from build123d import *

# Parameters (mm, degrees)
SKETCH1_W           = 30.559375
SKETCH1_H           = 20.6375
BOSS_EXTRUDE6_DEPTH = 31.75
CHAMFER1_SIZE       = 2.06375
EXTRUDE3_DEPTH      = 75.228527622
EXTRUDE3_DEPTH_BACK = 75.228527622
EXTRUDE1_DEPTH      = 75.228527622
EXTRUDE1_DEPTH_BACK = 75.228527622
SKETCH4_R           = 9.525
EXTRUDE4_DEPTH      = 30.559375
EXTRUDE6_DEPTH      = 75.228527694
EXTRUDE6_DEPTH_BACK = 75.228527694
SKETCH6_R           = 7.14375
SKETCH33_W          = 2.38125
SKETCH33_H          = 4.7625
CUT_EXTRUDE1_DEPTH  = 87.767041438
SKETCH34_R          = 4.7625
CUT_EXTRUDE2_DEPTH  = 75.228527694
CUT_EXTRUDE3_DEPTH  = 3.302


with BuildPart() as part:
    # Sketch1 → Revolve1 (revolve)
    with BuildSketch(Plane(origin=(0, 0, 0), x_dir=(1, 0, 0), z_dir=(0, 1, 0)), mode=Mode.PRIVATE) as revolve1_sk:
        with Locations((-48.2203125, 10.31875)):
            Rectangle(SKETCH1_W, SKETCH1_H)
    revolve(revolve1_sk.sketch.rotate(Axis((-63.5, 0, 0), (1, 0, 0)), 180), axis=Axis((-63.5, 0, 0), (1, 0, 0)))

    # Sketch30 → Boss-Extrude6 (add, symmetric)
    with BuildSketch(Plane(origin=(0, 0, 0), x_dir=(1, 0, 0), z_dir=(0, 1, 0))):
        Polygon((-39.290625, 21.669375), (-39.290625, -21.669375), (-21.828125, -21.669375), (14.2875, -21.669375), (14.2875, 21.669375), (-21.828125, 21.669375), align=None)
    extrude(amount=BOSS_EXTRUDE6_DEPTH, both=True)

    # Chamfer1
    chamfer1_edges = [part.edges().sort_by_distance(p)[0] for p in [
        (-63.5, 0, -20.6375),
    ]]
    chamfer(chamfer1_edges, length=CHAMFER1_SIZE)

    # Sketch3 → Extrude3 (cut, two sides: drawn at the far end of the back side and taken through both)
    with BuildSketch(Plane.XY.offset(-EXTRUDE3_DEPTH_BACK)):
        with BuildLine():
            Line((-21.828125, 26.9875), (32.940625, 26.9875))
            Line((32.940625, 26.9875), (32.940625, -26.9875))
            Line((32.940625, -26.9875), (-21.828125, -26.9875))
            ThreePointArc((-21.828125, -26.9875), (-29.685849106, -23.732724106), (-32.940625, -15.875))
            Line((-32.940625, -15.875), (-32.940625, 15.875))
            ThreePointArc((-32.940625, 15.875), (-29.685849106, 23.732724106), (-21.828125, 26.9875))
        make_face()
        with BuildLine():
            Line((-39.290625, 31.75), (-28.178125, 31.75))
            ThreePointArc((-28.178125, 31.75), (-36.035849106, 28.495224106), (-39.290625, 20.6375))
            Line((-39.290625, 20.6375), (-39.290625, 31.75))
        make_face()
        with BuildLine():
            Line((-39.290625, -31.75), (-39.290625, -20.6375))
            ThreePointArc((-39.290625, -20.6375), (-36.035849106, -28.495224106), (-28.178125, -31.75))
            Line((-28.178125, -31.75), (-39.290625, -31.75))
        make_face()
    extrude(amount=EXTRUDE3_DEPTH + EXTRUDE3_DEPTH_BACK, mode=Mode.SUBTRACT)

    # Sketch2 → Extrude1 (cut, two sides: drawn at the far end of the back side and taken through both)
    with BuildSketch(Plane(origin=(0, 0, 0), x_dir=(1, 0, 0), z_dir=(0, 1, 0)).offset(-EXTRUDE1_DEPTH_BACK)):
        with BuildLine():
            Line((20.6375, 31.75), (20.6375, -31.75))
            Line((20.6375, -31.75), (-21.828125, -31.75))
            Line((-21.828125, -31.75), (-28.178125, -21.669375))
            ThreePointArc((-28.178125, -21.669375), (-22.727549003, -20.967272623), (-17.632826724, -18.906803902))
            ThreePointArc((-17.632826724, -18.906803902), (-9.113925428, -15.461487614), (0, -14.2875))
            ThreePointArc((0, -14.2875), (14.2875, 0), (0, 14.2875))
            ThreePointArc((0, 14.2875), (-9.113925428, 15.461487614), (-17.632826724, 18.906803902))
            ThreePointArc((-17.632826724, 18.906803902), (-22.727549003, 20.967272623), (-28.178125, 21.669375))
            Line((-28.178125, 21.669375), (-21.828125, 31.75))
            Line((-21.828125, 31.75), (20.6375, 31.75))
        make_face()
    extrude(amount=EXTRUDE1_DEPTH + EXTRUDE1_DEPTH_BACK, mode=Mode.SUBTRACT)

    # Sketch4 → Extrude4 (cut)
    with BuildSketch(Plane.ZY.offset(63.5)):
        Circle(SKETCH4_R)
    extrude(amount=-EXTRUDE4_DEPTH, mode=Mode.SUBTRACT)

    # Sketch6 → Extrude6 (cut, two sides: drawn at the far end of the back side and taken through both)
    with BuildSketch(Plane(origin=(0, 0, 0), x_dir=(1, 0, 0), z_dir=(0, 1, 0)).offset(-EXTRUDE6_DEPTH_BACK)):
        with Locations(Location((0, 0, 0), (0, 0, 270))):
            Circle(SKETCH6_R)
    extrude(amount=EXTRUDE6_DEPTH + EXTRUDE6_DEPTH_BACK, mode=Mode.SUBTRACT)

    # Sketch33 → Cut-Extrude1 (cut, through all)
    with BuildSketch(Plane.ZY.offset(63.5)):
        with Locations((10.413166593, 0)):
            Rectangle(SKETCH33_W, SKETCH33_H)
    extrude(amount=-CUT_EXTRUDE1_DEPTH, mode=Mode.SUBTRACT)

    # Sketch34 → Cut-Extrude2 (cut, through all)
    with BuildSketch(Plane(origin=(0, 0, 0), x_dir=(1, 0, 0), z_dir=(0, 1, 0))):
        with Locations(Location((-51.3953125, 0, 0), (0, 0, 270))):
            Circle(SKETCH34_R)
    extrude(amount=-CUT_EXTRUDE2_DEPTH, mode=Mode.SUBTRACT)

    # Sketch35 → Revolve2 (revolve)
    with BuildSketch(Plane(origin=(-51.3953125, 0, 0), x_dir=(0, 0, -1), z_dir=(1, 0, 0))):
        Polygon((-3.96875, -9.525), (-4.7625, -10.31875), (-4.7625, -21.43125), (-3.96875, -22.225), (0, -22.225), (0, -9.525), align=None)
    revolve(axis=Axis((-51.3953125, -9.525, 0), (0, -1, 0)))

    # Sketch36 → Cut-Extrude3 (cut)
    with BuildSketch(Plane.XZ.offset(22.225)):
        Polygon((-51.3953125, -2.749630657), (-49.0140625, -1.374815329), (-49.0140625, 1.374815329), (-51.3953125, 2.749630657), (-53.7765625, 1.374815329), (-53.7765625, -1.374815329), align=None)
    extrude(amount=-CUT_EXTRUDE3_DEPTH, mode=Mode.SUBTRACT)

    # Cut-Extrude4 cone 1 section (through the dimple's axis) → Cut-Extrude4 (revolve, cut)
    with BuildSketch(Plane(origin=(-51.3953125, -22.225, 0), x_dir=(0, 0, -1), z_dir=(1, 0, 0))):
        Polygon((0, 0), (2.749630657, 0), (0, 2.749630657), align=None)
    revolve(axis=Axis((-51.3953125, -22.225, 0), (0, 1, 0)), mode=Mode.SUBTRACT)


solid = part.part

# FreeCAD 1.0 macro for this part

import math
import FreeCAD as App
import Part
import Sketcher
from FreeCAD import Vector
Q = App.Units.Quantity


def edges_at(feature, points):
    """Names of the edges that pass closest to the given points."""
    edges = feature.Shape.Edges
    near = lambda p: min(range(len(edges)), key=lambda i: edges[i].distToShape(Part.Vertex(*p))[0])
    return sorted({f"Edge{near(p) + 1}" for p in points})


def add_polygon(sketch, points):
    """Adds a closed chain of lines whose ends are joined by coincident constraints."""
    first, n = sketch.GeometryCount, len(points)
    for a, b in zip(points, points[1:] + points[:1]):
        sketch.addGeometry(Part.LineSegment(App.Vector(*a, 0), App.Vector(*b, 0)), False)
    for i in range(n):
        sketch.addConstraint(Sketcher.Constraint("Coincident", first + i, 2, first + (i + 1) % n, 1))

doc = App.newDocument("Part")
body = doc.addObject("PartDesign::Body", "Body")

sketch1 = body.newObject("Sketcher::SketchObject", "Sketch")
sketch1.AttachmentSupport = (doc.getObject("XZ_Plane"), [""])
sketch1.MapMode = "FlatFace"
add_polygon(sketch1, [(-63.5, -20.6375), (-63.5, 0), (-32.940625, 0), (-32.940625, -20.6375)])
sketch1.addConstraint(Sketcher.Constraint("Vertical", 0))
sketch1.addConstraint(Sketcher.Constraint("Horizontal", 1))
sketch1.addConstraint(Sketcher.Constraint("Vertical", 2))
sketch1.addConstraint(Sketcher.Constraint("Horizontal", 3))
sketch1.addConstraint(Sketcher.Constraint("PointOnObject", 0, 2, -1))
sketch1.addConstraint(Sketcher.Constraint("DistanceX", 0, 2, -1, 1, Q("2.5 in")))
sketch1.addConstraint(Sketcher.Constraint("DistanceX", 1, 1, 1, 2, Q("1.203125 in")))
sketch1.addConstraint(Sketcher.Constraint("DistanceY", 0, 1, 0, 2, Q("0.8125 in")))
revolution = body.newObject("PartDesign::Revolution", "Revolution")
revolution.Profile = sketch1
revolution.ReferenceAxis = (sketch1, ["H_Axis"])
revolution.Angle = 360

sketch2 = body.newObject("Sketcher::SketchObject", "Sketch001")
sketch2.AttachmentSupport = (doc.getObject("XZ_Plane"), [""])
sketch2.MapMode = "FlatFace"
add_polygon(sketch2, [(-39.290625, -21.669375), (-39.290625, 21.669375), (14.2875, 21.669375), (14.2875, -21.669375)])
sketch2.addConstraint(Sketcher.Constraint("Vertical", 0))
sketch2.addConstraint(Sketcher.Constraint("Horizontal", 1))
sketch2.addConstraint(Sketcher.Constraint("Vertical", 2))
sketch2.addConstraint(Sketcher.Constraint("Horizontal", 3))
sketch2.addConstraint(Sketcher.Constraint("DistanceX", 1, 1, 1, 2, Q("2.109375 in")))
sketch2.addConstraint(Sketcher.Constraint("DistanceX", 0, 2, -1, 1, Q("1.546875 in")))
sketch2.addConstraint(Sketcher.Constraint("DistanceY", 0, 1, 0, 2, 43.33875))
sketch2.addConstraint(Sketcher.Constraint("DistanceY", -1, 1, 0, 2, 21.669375))
pad1 = body.newObject("PartDesign::Pad", "Pad")
pad1.Profile = sketch2
pad1.Length = Q("2.5 in")
pad1.Midplane = True
doc.recompute()

chamfer = body.newObject("PartDesign::Chamfer", "Chamfer")
chamfer.Base = (pad1, edges_at(pad1, [(-63.5, 0, -20.637)]))
chamfer.Size = 2.06375

sketch3 = body.newObject("Sketcher::SketchObject", "Sketch002")
sketch3.AttachmentSupport = (doc.getObject("XY_Plane"), [""])
sketch3.MapMode = "FlatFace"
sketch3.addGeometry(Part.LineSegment(Vector(32.940625, 26.9875, 0), Vector(-21.828125, 26.9875, 0)), False)
sketch3.addGeometry(Part.ArcOfCircle(Part.Circle(Vector(-21.828125, 15.875, 0), Vector(0, 0, 1), 11.1125), math.radians(90), math.radians(180)), False)
sketch3.addGeometry(Part.LineSegment(Vector(-32.940625, 15.875, 0), Vector(-32.940625, -15.875, 0)), False)
sketch3.addGeometry(Part.ArcOfCircle(Part.Circle(Vector(-21.828125, -15.875, 0), Vector(0, 0, 1), 11.1125), math.radians(180), math.radians(270)), False)
sketch3.addGeometry(Part.LineSegment(Vector(-21.828125, -26.9875, 0), Vector(32.940625, -26.9875, 0)), False)
sketch3.addGeometry(Part.LineSegment(Vector(32.940625, -26.9875, 0), Vector(32.940625, 26.9875, 0)), False)
sketch3.addGeometry(Part.LineSegment(Vector(-28.178125, 31.75, 0), Vector(-39.290625, 31.75, 0)), False)
sketch3.addGeometry(Part.LineSegment(Vector(-39.290625, 31.75, 0), Vector(-39.290625, 20.6375, 0)), False)
sketch3.addGeometry(Part.ArcOfCircle(Part.Circle(Vector(-28.178125, 20.6375, 0), Vector(0, 0, 1), 11.1125), math.radians(90), math.radians(180)), False)
sketch3.addGeometry(Part.LineSegment(Vector(-39.290625, -20.6375, 0), Vector(-39.290625, -31.75, 0)), False)
sketch3.addGeometry(Part.LineSegment(Vector(-39.290625, -31.75, 0), Vector(-28.178125, -31.75, 0)), False)
sketch3.addGeometry(Part.ArcOfCircle(Part.Circle(Vector(-28.178125, -20.6375, 0), Vector(0, 0, 1), 11.1125), math.radians(180), math.radians(270)), False)
sketch3.addConstraint(Sketcher.Constraint("Tangent", 0, 2, 1, 1))
sketch3.addConstraint(Sketcher.Constraint("Tangent", 1, 2, 2, 1))
sketch3.addConstraint(Sketcher.Constraint("Tangent", 2, 2, 3, 1))
sketch3.addConstraint(Sketcher.Constraint("Tangent", 3, 2, 4, 1))
sketch3.addConstraint(Sketcher.Constraint("Coincident", 4, 2, 5, 1))
sketch3.addConstraint(Sketcher.Constraint("Coincident", 5, 2, 0, 1))
sketch3.addConstraint(Sketcher.Constraint("Coincident", 6, 2, 7, 1))
sketch3.addConstraint(Sketcher.Constraint("Tangent", 7, 2, 8, 2))
sketch3.addConstraint(Sketcher.Constraint("Tangent", 8, 1, 6, 1))
sketch3.addConstraint(Sketcher.Constraint("Coincident", 9, 2, 10, 1))
sketch3.addConstraint(Sketcher.Constraint("Tangent", 10, 2, 11, 2))
sketch3.addConstraint(Sketcher.Constraint("Tangent", 11, 1, 9, 1))
sketch3.addConstraint(Sketcher.Constraint("Horizontal", 0))
sketch3.addConstraint(Sketcher.Constraint("Vertical", 2))
sketch3.addConstraint(Sketcher.Constraint("Horizontal", 4))
sketch3.addConstraint(Sketcher.Constraint("Vertical", 5))
sketch3.addConstraint(Sketcher.Constraint("Horizontal", 6))
sketch3.addConstraint(Sketcher.Constraint("Vertical", 7))
sketch3.addConstraint(Sketcher.Constraint("Vertical", 9))
sketch3.addConstraint(Sketcher.Constraint("Horizontal", 10))
sketch3.addConstraint(Sketcher.Constraint("Equal", 1, 3))
sketch3.addConstraint(Sketcher.Constraint("Equal", 3, 8))
sketch3.addConstraint(Sketcher.Constraint("Equal", 8, 11))
sketch3.addConstraint(Sketcher.Constraint("Symmetric", 8, 3, 11, 3, -1))
sketch3.addConstraint(Sketcher.Constraint("Radius", 1, Q("0.4375 in")))
sketch3.addConstraint(Sketcher.Constraint("DistanceY", 2, 2, 2, 1, Q("1.25 in")))
sketch3.addConstraint(Sketcher.Constraint("DistanceX", 0, 2, 0, 1, Q("2.15625 in")))
sketch3.addConstraint(Sketcher.Constraint("DistanceY", -1, 1, 6, 2, Q("1.25 in")))
sketch3.addConstraint(Sketcher.Constraint("DistanceX", 8, 3, 1, 3, Q("0.25 in")))
sketch3.addConstraint(Sketcher.Constraint("DistanceY", 8, 3, 0, 2, Q("0.25 in")))
sketch3.addConstraint(Sketcher.Constraint("DistanceX", 1, 3, -1, 1, Q("0.859375 in")))
pocket1 = body.newObject("PartDesign::Pocket", "Pocket")
pocket1.Profile = sketch3
pocket1.Type = "ThroughAll"
pocket1.Midplane = True

sketch4 = body.newObject("Sketcher::SketchObject", "Sketch003")
sketch4.AttachmentSupport = (doc.getObject("XZ_Plane"), [""])
sketch4.MapMode = "FlatFace"
sketch4.addGeometry(Part.LineSegment(Vector(20.6375, 31.75, 0), Vector(20.6375, -31.75, 0)), False)
sketch4.addGeometry(Part.LineSegment(Vector(20.6375, -31.75, 0), Vector(-21.828125, -31.75, 0)), False)
sketch4.addGeometry(Part.LineSegment(Vector(-21.828125, -31.75, 0), Vector(-28.178125, -21.669375, 0)), False)
sketch4.addGeometry(Part.ArcOfCircle(Part.Circle(Vector(-28.178125, -0.16131, 0), Vector(0, 0, 1), 21.508065), math.radians(-90), math.radians(-60.640022)), False)
sketch4.addGeometry(Part.ArcOfCircle(Part.Circle(Vector(0, -50.251203, 0), Vector(0, 0, 1), 35.963703), math.radians(90), math.radians(119.359978)), False)
sketch4.addGeometry(Part.ArcOfCircle(Part.Circle(Vector(0, 0, 0), Vector(0, 0, 1), 14.2875), math.radians(-90), math.radians(90)), False)
sketch4.addGeometry(Part.ArcOfCircle(Part.Circle(Vector(0, 50.251203, 0), Vector(0, 0, 1), 35.963703), math.radians(-119.359978), math.radians(-90)), False)
sketch4.addGeometry(Part.ArcOfCircle(Part.Circle(Vector(-28.178125, 0.16131, 0), Vector(0, 0, 1), 21.508065), math.radians(60.640022), math.radians(90)), False)
sketch4.addGeometry(Part.LineSegment(Vector(-28.178125, 21.669375, 0), Vector(-21.828125, 31.75, 0)), False)
sketch4.addGeometry(Part.LineSegment(Vector(-21.828125, 31.75, 0), Vector(20.6375, 31.75, 0)), False)
sketch4.addConstraint(Sketcher.Constraint("Coincident", 0, 2, 1, 1))
sketch4.addConstraint(Sketcher.Constraint("Coincident", 1, 2, 2, 1))
sketch4.addConstraint(Sketcher.Constraint("Coincident", 2, 2, 3, 1))
sketch4.addConstraint(Sketcher.Constraint("Tangent", 3, 2, 4, 2))
sketch4.addConstraint(Sketcher.Constraint("Tangent", 4, 1, 5, 1))
sketch4.addConstraint(Sketcher.Constraint("Tangent", 5, 2, 6, 2))
sketch4.addConstraint(Sketcher.Constraint("Tangent", 6, 1, 7, 1))
sketch4.addConstraint(Sketcher.Constraint("Coincident", 7, 2, 8, 1))
sketch4.addConstraint(Sketcher.Constraint("Coincident", 8, 2, 9, 1))
sketch4.addConstraint(Sketcher.Constraint("Coincident", 9, 2, 0, 1))
sketch4.addConstraint(Sketcher.Constraint("Vertical", 0))
sketch4.addConstraint(Sketcher.Constraint("Horizontal", 1))
sketch4.addConstraint(Sketcher.Constraint("Horizontal", 9))
sketch4.addConstraint(Sketcher.Constraint("Coincident", 5, 3, -1, 1))
sketch4.addConstraint(Sketcher.Constraint("Equal", 4, 6))
sketch4.addConstraint(Sketcher.Constraint("Equal", 3, 7))
sketch4.addConstraint(Sketcher.Constraint("Symmetric", 3, 3, 7, 3, -1))
sketch4.addConstraint(Sketcher.Constraint("Symmetric", 1, 2, 8, 2, -1))
sketch4.addConstraint(Sketcher.Constraint("PointOnObject", 4, 3, -2))
sketch4.addConstraint(Sketcher.Constraint("Vertical", 7, 3, 2, 2))
sketch4.addConstraint(Sketcher.Constraint("Vertical", 2, 2, 7, 2))
sketch4.addConstraint(Sketcher.Constraint("DistanceY", 0, 2, 0, 1, Q("2.5 in")))
sketch4.addConstraint(Sketcher.Constraint("Radius", 5, Q("0.5625 in")))
sketch4.addConstraint(Sketcher.Constraint("DistanceX", 1, 2, 1, 1, Q("1.671875 in")))
sketch4.addConstraint(Sketcher.Constraint("DistanceX", 3, 3, 1, 2, Q("0.25 in")))
sketch4.addConstraint(Sketcher.Constraint("DistanceX", 3, 3, -1, 1, Q("1.109375 in")))
sketch4.addConstraint(Sketcher.Constraint("Radius", 3, 21.508065))
sketch4.addConstraint(Sketcher.Constraint("Radius", 4, 35.963703))
pocket2 = body.newObject("PartDesign::Pocket", "Pocket001")
pocket2.Profile = sketch4
pocket2.Type = "ThroughAll"
pocket2.Midplane = True

sketch5 = body.newObject("Sketcher::SketchObject", "Sketch004")
sketch5.AttachmentSupport = (doc.getObject("YZ_Plane"), [""])
sketch5.MapMode = "FlatFace"
sketch5.AttachmentOffset = App.Placement(Vector(0, 0, -2.5 * 25.4), App.Rotation())
sketch5.addGeometry(Part.Circle(Vector(0, 0, 0), Vector(0, 0, 1), 9.525), False)
sketch5.addConstraint(Sketcher.Constraint("Coincident", 0, 3, -1, 1))
sketch5.addConstraint(Sketcher.Constraint("Diameter", 0, Q("0.75 in")))
pocket3 = body.newObject("PartDesign::Pocket", "Pocket002")
pocket3.Profile = sketch5
pocket3.Length = Q("1.203125 in")
pocket3.Reversed = True

sketch6 = body.newObject("Sketcher::SketchObject", "Sketch005")
sketch6.AttachmentSupport = (doc.getObject("XZ_Plane"), [""])
sketch6.MapMode = "FlatFace"
sketch6.addGeometry(Part.Circle(Vector(0, 0, 0), Vector(0, 0, 1), 7.14375), False)
sketch6.addConstraint(Sketcher.Constraint("Coincident", 0, 3, -1, 1))
sketch6.addConstraint(Sketcher.Constraint("Diameter", 0, Q("0.5625 in")))
pocket4 = body.newObject("PartDesign::Pocket", "Pocket003")
pocket4.Profile = sketch6
pocket4.Type = "ThroughAll"
pocket4.Midplane = True

sketch7 = body.newObject("Sketcher::SketchObject", "Sketch006")
sketch7.AttachmentSupport = (doc.getObject("YZ_Plane"), [""])
sketch7.MapMode = "FlatFace"
sketch7.AttachmentOffset = App.Placement(Vector(0, 0, -2.5 * 25.4), App.Rotation())
add_polygon(sketch7, [(2.38125, 9.222542), (-2.38125, 9.222542), (-2.38125, 11.603792), (2.38125, 11.603792)])
sketch7.addConstraint(Sketcher.Constraint("Horizontal", 0))
sketch7.addConstraint(Sketcher.Constraint("Vertical", 1))
sketch7.addConstraint(Sketcher.Constraint("Horizontal", 2))
sketch7.addConstraint(Sketcher.Constraint("Vertical", 3))
sketch7.addConstraint(Sketcher.Constraint("DistanceX", 0, 2, 0, 1, Q("0.1875 in")))
sketch7.addConstraint(Sketcher.Constraint("DistanceY", 1, 1, 1, 2, Q("0.09375 in")))
sketch7.addConstraint(Sketcher.Constraint("DistanceX", 0, 2, -1, 1, Q("0.09375 in")))
sketch7.addConstraint(Sketcher.Constraint("DistanceY", -1, 1, 0, 2, 9.222542))
pocket5 = body.newObject("PartDesign::Pocket", "Pocket004")
pocket5.Profile = sketch7
pocket5.Type = "ThroughAll"
pocket5.Reversed = True

sketch8 = body.newObject("Sketcher::SketchObject", "Sketch007")
sketch8.AttachmentSupport = (doc.getObject("XZ_Plane"), [""])
sketch8.MapMode = "FlatFace"
sketch8.addGeometry(Part.Circle(Vector(-51.395313, 0, 0), Vector(0, 0, 1), 4.7625), False)
sketch8.addConstraint(Sketcher.Constraint("PointOnObject", 0, 3, -1))
sketch8.addConstraint(Sketcher.Constraint("Diameter", 0, Q("0.375 in")))
sketch8.addConstraint(Sketcher.Constraint("DistanceX", 0, 3, -1, 1, 51.395313))
pocket6 = body.newObject("PartDesign::Pocket", "Pocket005")
pocket6.Profile = sketch8
pocket6.Type = "ThroughAll"
pocket6.Reversed = True

sketch9 = body.newObject("Sketcher::SketchObject", "Sketch008")
sketch9.AttachmentSupport = (doc.getObject("YZ_Plane"), [""])
sketch9.MapMode = "FlatFace"
sketch9.AttachmentOffset = App.Placement(Vector(0, 0, -51.395313), App.Rotation())
add_polygon(sketch9, [(-9.525, 3.96875), (-10.31875, 4.7625), (-21.43125, 4.7625), (-22.225, 3.96875), (-22.225, 0), (-9.525, 0)])
sketch9.addConstraint(Sketcher.Constraint("Horizontal", 1))
sketch9.addConstraint(Sketcher.Constraint("Vertical", 3))
sketch9.addConstraint(Sketcher.Constraint("Horizontal", 4))
sketch9.addConstraint(Sketcher.Constraint("Vertical", 5))
sketch9.addConstraint(Sketcher.Constraint("PointOnObject", 3, 2, -1))
sketch9.addConstraint(Sketcher.Constraint("Perpendicular", 0, 2))
sketch9.addConstraint(Sketcher.Constraint("Horizontal", 2, 2, 5, 2))
sketch9.addConstraint(Sketcher.Constraint("Equal", 0, 2))
sketch9.addConstraint(Sketcher.Constraint("DistanceX", 4, 1, 4, 2, Q("0.5 in")))
sketch9.addConstraint(Sketcher.Constraint("DistanceX", 1, 2, 1, 1, Q("0.4375 in")))
sketch9.addConstraint(Sketcher.Constraint("DistanceY", 3, 2, 3, 1, Q("0.15625 in")))
sketch9.addConstraint(Sketcher.Constraint("DistanceX", 0, 2, -1, 1, Q("0.40625 in")))
revolution2 = body.newObject("PartDesign::Revolution", "Revolution001")
revolution2.Profile = sketch9
revolution2.ReferenceAxis = (sketch9, ["H_Axis"])
revolution2.Angle = 360

sketch10 = body.newObject("Sketcher::SketchObject", "Sketch009")
sketch10.AttachmentSupport = (doc.getObject("XZ_Plane"), [""])
sketch10.MapMode = "FlatFace"
sketch10.AttachmentOffset = App.Placement(Vector(0, 0, 0.875 * 25.4), App.Rotation())
add_polygon(sketch10, [(-51.395313, -2.749631), (-49.014063, -1.374815), (-49.014063, 1.374815), (-51.395313, 2.749631), (-53.776562, 1.374815), (-53.776562, -1.374815)])
sketch10.addConstraint(Sketcher.Constraint("Vertical", 1))
sketch10.addConstraint(Sketcher.Constraint("Vertical", 4))
sketch10.addConstraint(Sketcher.Constraint("Symmetric", 2, 2, 5, 2, -1))
sketch10.addConstraint(Sketcher.Constraint("Parallel", 0, 3))
sketch10.addConstraint(Sketcher.Constraint("Parallel", 2, 5))
sketch10.addConstraint(Sketcher.Constraint("Horizontal", 1, 2, 3, 2))
sketch10.addConstraint(Sketcher.Constraint("Horizontal", 0, 2, 4, 2))
sketch10.addConstraint(Sketcher.Constraint("Angle", 0, Q("30 deg")))
sketch10.addConstraint(Sketcher.Constraint("DistanceX", 2, 2, 1, 2, Q("0.09375 in")))
sketch10.addConstraint(Sketcher.Constraint("DistanceY", 1, 1, 1, 2, 2.749631))
sketch10.addConstraint(Sketcher.Constraint("DistanceX", 0, 2, -1, 1, 49.014063))
pocket7 = body.newObject("PartDesign::Pocket", "Pocket006")
pocket7.Profile = sketch10
pocket7.Length = Q("0.13 in")

sketch11 = body.newObject("Sketcher::SketchObject", "Sketch010")
sketch11.AttachmentSupport = (doc.getObject("YZ_Plane"), [""])
sketch11.MapMode = "FlatFace"
sketch11.AttachmentOffset = App.Placement(Vector(0, 0, -51.395313), App.Rotation())
add_polygon(sketch11, [(-22.225, 0), (-22.225, -2.749631), (-19.475369, 0)])
sketch11.addConstraint(Sketcher.Constraint("Vertical", 0))
sketch11.addConstraint(Sketcher.Constraint("Horizontal", 2))
sketch11.addConstraint(Sketcher.Constraint("PointOnObject", 1, 2, -1))
sketch11.addConstraint(Sketcher.Constraint("Equal", 2, 0))
sketch11.addConstraint(Sketcher.Constraint("DistanceX", 0, 2, -1, 1, Q("0.875 in")))
sketch11.addConstraint(Sketcher.Constraint("DistanceX", 2, 2, 2, 1, 2.749631))
groove = body.newObject("PartDesign::Groove", "Groove")
groove.Profile = sketch11
groove.ReferenceAxis = (sketch11, ["H_Axis"])
groove.Angle = 360

doc.recompute()
